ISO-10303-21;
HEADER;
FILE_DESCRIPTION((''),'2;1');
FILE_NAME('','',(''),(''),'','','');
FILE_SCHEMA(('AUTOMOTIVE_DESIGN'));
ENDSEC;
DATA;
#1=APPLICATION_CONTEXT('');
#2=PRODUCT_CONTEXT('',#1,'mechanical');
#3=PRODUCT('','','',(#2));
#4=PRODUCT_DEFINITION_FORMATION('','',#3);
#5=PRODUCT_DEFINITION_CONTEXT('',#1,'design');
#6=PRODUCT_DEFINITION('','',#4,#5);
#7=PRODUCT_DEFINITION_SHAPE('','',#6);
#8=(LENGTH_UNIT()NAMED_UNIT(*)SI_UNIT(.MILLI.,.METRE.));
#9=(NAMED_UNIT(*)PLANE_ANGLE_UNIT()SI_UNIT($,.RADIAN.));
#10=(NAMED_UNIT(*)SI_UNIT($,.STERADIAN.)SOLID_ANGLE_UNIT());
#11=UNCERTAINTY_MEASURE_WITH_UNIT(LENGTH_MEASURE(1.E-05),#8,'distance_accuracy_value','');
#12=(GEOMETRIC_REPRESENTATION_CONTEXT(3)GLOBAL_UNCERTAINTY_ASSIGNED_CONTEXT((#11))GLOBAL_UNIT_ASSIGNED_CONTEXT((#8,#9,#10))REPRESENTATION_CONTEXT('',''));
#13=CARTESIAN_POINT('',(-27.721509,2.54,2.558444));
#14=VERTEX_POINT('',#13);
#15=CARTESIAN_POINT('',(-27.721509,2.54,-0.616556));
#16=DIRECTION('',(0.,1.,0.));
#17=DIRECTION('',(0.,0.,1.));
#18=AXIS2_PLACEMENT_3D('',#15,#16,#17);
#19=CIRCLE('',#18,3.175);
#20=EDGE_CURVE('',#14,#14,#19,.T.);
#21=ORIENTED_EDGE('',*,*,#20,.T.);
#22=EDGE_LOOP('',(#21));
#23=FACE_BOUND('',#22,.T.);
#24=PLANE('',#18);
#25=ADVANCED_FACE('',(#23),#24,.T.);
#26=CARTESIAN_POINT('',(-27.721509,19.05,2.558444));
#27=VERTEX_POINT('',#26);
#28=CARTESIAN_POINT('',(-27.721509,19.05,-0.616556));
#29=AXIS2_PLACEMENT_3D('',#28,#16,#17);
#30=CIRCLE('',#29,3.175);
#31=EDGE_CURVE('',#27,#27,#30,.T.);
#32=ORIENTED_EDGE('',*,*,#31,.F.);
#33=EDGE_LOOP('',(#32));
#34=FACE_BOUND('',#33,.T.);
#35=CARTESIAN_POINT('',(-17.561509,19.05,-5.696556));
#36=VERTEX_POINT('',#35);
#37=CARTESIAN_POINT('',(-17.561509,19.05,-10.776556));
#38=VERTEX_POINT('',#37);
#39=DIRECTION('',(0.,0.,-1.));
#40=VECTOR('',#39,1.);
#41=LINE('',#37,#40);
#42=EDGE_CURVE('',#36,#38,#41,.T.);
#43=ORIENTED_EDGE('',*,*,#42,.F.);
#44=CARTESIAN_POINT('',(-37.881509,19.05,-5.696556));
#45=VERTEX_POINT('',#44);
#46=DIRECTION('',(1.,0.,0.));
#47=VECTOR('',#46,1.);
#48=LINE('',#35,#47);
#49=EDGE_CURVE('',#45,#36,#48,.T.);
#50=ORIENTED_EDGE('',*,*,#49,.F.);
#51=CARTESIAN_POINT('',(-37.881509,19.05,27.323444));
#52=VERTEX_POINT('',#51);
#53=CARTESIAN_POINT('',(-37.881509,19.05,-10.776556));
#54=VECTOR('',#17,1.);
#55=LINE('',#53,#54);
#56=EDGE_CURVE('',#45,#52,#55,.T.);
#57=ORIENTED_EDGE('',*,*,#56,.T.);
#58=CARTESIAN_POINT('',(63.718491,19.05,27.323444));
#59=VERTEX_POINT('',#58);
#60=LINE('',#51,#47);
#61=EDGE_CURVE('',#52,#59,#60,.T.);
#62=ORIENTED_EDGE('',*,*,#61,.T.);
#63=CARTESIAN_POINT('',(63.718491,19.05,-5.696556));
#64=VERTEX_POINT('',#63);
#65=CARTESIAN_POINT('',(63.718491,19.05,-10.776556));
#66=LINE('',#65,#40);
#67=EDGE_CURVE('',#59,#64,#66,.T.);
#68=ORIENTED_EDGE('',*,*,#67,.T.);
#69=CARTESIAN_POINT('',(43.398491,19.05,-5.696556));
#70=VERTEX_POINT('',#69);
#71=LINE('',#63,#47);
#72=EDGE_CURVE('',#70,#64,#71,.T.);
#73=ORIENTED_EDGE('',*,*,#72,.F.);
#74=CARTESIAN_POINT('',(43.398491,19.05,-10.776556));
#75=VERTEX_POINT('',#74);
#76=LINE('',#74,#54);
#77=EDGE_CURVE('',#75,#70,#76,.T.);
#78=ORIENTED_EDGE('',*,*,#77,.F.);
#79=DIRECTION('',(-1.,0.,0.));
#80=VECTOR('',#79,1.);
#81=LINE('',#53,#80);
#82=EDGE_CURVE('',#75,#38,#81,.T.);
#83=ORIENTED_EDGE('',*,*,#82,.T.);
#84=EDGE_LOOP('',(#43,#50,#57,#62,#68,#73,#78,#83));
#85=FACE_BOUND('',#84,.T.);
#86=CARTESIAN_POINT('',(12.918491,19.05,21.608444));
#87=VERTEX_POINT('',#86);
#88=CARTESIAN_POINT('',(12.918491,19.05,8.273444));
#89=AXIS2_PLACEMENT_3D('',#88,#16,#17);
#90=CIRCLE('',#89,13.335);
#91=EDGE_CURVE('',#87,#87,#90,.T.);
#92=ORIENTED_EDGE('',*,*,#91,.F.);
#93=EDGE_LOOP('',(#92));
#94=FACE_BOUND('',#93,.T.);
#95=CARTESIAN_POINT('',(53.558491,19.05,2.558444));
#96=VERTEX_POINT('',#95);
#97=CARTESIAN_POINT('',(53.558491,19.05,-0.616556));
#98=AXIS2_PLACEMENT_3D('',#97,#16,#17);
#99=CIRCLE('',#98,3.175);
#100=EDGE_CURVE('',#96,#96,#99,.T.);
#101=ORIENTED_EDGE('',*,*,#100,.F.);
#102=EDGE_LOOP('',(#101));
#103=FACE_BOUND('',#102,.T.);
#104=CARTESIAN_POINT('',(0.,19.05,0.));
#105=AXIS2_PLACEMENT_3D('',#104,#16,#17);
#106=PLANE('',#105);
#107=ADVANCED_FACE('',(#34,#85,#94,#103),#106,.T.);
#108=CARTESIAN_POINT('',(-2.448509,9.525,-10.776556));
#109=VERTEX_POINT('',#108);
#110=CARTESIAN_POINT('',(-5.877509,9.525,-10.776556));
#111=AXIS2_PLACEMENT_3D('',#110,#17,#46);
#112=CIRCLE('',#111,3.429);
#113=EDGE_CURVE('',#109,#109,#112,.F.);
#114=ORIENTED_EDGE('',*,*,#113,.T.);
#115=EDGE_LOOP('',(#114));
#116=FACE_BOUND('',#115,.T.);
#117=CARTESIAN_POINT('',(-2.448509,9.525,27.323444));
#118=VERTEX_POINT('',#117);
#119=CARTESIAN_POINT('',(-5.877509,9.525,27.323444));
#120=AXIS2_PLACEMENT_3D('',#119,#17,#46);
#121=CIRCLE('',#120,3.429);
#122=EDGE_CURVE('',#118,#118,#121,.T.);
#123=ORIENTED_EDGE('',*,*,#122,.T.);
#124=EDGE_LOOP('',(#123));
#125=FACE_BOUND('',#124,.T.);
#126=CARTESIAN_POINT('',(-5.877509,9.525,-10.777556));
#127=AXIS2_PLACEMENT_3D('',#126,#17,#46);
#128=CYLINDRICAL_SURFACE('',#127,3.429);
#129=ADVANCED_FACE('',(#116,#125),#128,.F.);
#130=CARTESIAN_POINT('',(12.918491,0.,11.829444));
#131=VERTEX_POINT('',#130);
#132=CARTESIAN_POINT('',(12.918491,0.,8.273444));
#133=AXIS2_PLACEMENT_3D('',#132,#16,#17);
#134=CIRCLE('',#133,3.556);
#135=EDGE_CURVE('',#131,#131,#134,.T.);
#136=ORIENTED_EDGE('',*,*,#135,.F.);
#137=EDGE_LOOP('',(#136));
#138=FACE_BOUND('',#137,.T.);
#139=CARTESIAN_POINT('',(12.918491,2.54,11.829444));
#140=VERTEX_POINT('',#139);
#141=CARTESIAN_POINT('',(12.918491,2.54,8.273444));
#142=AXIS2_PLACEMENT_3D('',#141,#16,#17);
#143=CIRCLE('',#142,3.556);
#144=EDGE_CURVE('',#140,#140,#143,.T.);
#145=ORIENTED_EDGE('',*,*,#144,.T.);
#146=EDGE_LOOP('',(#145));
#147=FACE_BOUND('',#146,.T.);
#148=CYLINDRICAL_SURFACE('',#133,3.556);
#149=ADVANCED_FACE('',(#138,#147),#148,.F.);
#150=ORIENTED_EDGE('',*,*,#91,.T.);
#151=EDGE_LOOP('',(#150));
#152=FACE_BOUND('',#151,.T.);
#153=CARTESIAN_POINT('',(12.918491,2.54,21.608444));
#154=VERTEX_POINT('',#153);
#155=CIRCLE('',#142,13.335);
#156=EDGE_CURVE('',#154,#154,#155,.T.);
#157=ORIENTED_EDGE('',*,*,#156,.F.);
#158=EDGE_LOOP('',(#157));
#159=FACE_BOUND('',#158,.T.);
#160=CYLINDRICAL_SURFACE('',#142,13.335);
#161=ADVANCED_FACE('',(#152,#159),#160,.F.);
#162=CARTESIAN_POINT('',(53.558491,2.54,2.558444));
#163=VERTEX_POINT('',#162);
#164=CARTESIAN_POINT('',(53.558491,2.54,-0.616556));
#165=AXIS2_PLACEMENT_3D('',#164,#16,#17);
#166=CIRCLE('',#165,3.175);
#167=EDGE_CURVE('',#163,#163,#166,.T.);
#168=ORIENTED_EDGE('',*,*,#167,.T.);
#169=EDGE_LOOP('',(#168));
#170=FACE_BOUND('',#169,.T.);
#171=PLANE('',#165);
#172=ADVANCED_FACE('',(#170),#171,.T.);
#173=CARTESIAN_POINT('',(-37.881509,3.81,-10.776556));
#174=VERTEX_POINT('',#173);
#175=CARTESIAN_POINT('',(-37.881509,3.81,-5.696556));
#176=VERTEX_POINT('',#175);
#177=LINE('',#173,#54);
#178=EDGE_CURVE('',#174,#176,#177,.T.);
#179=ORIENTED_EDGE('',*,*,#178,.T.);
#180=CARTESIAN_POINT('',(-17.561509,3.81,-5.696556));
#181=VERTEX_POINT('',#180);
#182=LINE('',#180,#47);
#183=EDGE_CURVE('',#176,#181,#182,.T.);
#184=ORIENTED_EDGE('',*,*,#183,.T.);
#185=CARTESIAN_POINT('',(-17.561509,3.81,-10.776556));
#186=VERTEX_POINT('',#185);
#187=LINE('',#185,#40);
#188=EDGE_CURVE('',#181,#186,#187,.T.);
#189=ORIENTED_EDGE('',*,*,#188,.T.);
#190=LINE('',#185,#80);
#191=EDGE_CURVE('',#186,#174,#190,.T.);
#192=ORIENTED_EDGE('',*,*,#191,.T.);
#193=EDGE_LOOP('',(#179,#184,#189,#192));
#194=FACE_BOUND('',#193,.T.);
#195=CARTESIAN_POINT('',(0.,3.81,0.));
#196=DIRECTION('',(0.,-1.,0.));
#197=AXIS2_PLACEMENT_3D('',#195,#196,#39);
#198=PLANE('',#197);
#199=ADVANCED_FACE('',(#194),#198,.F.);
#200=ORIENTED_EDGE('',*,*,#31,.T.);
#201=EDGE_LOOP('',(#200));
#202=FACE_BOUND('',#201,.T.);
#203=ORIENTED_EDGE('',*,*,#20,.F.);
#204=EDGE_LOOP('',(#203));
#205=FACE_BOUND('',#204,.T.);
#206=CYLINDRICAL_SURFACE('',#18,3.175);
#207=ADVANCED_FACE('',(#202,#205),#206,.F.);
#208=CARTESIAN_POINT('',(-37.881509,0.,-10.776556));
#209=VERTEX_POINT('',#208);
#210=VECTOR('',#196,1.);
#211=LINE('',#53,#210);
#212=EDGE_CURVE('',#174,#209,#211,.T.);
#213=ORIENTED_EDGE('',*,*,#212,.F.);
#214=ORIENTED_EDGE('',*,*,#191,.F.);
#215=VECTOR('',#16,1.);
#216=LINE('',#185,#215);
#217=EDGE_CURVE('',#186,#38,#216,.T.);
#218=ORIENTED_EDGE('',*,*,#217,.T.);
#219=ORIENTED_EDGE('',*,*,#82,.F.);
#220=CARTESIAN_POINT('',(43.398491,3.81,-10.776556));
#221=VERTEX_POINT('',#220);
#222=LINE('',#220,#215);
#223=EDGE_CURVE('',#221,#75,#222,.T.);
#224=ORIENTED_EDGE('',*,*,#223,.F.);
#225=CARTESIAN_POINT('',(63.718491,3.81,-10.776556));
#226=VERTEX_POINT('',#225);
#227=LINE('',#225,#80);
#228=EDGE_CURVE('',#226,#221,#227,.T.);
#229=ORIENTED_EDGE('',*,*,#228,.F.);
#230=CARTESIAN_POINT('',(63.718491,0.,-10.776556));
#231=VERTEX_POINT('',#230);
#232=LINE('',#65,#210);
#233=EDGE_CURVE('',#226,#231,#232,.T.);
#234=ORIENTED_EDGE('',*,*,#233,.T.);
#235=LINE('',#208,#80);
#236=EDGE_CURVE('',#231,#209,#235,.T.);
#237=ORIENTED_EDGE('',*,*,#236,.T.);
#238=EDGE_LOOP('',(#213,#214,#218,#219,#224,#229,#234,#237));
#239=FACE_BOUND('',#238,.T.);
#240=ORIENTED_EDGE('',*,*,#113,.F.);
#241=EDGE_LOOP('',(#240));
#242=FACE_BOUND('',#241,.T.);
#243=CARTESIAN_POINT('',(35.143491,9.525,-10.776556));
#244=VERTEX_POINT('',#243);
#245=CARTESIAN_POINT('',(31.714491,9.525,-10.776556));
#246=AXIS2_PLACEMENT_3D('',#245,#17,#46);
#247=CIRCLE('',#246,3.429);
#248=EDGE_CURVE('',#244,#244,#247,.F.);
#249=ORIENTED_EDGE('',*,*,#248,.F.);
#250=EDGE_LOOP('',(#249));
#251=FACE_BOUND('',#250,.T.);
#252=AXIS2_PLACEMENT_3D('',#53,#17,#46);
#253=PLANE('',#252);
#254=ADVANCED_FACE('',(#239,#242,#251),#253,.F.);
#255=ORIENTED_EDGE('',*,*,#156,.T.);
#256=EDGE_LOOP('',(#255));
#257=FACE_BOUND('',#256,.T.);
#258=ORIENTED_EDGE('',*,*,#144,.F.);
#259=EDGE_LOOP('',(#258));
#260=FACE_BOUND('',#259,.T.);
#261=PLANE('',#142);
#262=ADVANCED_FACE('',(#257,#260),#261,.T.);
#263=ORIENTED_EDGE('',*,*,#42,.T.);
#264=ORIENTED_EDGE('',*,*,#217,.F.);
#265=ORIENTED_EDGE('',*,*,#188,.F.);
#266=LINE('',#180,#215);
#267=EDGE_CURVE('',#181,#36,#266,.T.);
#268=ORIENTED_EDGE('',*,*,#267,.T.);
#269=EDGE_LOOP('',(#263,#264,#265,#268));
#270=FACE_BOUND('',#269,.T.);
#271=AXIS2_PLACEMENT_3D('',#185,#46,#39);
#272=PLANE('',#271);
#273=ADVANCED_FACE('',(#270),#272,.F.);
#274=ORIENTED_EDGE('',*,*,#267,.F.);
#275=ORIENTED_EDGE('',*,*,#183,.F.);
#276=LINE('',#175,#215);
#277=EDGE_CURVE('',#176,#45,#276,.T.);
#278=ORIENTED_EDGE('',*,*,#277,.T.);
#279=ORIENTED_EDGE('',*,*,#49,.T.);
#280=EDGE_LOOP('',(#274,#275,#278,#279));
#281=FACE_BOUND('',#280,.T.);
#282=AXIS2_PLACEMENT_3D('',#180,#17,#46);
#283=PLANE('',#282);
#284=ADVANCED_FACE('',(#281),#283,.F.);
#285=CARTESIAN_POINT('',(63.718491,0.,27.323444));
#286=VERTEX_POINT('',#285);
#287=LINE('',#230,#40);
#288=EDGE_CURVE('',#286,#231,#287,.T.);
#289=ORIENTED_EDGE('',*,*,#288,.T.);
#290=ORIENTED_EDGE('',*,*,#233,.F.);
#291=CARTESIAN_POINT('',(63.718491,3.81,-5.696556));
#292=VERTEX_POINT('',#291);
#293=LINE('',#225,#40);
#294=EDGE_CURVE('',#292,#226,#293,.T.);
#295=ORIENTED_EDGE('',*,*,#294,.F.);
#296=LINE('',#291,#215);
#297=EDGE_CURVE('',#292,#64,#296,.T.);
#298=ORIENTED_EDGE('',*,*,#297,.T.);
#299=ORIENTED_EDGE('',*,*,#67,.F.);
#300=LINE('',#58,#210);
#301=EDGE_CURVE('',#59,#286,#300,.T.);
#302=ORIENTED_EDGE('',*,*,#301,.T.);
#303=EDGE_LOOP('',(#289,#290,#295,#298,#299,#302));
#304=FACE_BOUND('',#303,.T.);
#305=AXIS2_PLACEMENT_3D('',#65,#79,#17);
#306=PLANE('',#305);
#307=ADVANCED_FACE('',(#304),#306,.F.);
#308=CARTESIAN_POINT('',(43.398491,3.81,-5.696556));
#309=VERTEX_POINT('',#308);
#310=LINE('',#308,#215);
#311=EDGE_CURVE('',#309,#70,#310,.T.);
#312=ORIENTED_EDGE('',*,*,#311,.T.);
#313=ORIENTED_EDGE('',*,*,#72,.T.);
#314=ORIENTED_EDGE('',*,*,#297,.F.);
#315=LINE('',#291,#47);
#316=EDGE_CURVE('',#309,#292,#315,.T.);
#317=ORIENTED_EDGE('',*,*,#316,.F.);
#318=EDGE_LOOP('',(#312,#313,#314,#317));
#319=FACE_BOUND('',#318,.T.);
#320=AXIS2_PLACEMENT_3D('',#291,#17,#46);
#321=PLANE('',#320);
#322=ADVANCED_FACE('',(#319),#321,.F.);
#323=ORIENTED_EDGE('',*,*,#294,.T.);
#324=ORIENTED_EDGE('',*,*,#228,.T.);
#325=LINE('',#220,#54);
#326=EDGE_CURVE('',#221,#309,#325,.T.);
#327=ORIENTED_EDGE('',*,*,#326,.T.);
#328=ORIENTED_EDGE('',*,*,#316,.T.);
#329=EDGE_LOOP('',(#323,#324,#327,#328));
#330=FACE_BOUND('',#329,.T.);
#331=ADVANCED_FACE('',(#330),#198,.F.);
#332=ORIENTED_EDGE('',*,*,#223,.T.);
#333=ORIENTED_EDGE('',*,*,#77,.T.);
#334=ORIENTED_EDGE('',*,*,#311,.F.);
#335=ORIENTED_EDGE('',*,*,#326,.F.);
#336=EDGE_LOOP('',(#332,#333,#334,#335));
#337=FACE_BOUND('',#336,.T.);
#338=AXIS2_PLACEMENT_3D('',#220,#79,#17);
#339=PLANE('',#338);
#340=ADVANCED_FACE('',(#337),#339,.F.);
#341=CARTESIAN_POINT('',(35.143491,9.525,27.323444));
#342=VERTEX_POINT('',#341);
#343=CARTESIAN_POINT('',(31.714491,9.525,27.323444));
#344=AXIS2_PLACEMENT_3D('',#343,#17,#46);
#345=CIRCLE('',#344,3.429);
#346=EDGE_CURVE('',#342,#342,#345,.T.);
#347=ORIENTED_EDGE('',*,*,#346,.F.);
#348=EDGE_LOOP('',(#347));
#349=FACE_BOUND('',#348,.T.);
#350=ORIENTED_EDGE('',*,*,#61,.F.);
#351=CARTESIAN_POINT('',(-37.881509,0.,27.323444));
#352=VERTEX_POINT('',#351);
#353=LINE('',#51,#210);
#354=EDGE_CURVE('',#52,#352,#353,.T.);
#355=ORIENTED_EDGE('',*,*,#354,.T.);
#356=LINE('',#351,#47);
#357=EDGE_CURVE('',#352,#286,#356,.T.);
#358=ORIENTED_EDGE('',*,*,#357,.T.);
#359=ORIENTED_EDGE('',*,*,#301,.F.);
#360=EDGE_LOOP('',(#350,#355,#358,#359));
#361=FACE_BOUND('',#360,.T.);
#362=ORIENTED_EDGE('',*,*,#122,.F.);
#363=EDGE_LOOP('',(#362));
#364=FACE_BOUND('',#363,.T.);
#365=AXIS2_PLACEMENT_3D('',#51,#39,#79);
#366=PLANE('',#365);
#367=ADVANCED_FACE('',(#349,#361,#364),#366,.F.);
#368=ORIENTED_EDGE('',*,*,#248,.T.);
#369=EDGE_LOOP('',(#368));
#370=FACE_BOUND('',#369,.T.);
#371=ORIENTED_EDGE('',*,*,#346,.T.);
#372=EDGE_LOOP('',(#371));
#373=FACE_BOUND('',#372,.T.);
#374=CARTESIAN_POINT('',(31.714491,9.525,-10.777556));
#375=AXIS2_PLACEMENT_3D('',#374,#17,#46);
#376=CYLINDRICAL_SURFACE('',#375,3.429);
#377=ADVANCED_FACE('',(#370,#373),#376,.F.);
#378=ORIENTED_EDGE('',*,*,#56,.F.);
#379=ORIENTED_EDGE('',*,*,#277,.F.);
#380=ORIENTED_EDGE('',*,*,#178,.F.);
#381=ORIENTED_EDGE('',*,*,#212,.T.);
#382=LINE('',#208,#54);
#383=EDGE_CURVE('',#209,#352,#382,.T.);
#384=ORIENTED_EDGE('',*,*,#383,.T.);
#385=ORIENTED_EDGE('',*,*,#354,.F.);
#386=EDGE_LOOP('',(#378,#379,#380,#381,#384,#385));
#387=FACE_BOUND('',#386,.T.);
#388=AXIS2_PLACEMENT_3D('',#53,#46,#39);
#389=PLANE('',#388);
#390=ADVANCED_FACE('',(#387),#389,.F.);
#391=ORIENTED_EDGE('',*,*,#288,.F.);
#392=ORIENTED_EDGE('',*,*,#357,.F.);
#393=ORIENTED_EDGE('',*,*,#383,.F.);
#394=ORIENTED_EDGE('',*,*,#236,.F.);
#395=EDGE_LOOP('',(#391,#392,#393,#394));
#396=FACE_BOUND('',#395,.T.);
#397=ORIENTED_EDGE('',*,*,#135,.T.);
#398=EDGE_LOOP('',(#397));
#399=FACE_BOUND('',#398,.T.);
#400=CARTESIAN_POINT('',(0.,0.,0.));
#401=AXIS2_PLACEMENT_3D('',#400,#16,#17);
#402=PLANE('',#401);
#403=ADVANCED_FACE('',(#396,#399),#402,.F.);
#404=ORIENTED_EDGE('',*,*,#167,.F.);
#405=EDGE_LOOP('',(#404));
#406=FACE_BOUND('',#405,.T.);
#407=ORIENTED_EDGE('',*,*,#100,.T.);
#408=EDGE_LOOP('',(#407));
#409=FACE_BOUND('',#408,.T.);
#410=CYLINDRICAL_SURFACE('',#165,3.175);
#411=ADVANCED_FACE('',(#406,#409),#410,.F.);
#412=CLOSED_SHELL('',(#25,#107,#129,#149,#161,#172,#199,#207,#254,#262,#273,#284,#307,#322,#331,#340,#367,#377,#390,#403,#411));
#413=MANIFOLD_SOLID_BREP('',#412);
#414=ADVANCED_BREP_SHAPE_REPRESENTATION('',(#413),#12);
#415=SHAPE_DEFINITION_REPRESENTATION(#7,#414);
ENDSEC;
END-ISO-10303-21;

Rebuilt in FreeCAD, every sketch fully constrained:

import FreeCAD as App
import Part
import Sketcher
Q = App.Units.Quantity


def add_polygon(sketch, points):
    """Adds a closed chain of lines whose ends are joined by coincident constraints."""
    first, n = sketch.GeometryCount, len(points)
    for a, b in zip(points, points[1:] + points[:1]):
        sketch.addGeometry(Part.LineSegment(App.Vector(*a, 0), App.Vector(*b, 0)), False)
    for i in range(n):
        sketch.addConstraint(Sketcher.Constraint("Coincident", first + i, 2, first + (i + 1) % n, 1))

doc = App.newDocument("Part")
body = doc.addObject("PartDesign::Body", "Body")

# Sketch on XZ plane
sketch1 = body.newObject("Sketcher::SketchObject", "Sketch")
sketch1.AttachmentSupport = (doc.getObject("XZ_Plane"), [""])
sketch1.MapMode = "FlatFace"
add_polygon(sketch1, [(-37.881509, -10.776556), (-37.881509, 27.323444), (63.718491, 27.323444), (63.718491, -10.776556)])  # lines 0-3
sketch1.addConstraint([
    Sketcher.Constraint("Vertical", 0),
    Sketcher.Constraint("Horizontal", 1),
    Sketcher.Constraint("Vertical", 2),
    Sketcher.Constraint("Horizontal", 3),
    Sketcher.Constraint("DistanceX", 1, 1, 1, 2, Q("4 in")),
    Sketcher.Constraint("DistanceY", 0, 1, 0, 2, Q("1.5 in")),
    Sketcher.Constraint("DistanceX", 0, 2, -1, 1, Q("37.881509 mm")),
    Sketcher.Constraint("DistanceY", -1, 1, 0, 2, Q("27.323444 mm")),
])
pad1 = body.newObject("PartDesign::Pad", "Pad")
pad1.Profile = sketch1
pad1.Length = Q("0.75 in")
pad1.Reversed = True

# Sketch on XZ plane
sketch2 = body.newObject("Sketcher::SketchObject", "Sketch001")
sketch2.AttachmentSupport = (doc.getObject("XZ_Plane"), [""])
sketch2.MapMode = "FlatFace"
sketch2.AttachmentOffset = App.Placement(App.Vector(0, 0, -0.75 * 25.4), App.Rotation())
sketch2.addGeometry([
    Part.Circle(App.Vector(-27.721509, -0.616556, 0), App.Vector(0, 0, 1), 3.175),
    Part.Circle(App.Vector(53.558491, -0.616556, 0), App.Vector(0, 0, 1), 3.175),
], False)
sketch2.addConstraint([
    Sketcher.Constraint("Equal", 0, 1),
    Sketcher.Constraint("Horizontal", 0, 3, 1, 3),
    Sketcher.Constraint("Diameter", 0, Q("0.25 in")),
    Sketcher.Constraint("DistanceX", 0, 3, 1, 3, Q("3.2 in")),
    Sketcher.Constraint("DistanceX", 0, 3, -1, 1, Q("27.721509 mm")),
    Sketcher.Constraint("DistanceY", 0, 3, -1, 1, Q("0.616556 mm")),
])
pocket1 = body.newObject("PartDesign::Pocket", "Pocket")
pocket1.Profile = sketch2
pocket1.Length = Q("0.65 in")
pocket1.Reversed = True

# Sketch on XY plane
sketch3 = body.newObject("Sketcher::SketchObject", "Sketch002")
sketch3.AttachmentSupport = (doc.getObject("XY_Plane"), [""])
sketch3.MapMode = "FlatFace"
sketch3.AttachmentOffset = App.Placement(App.Vector(0, 0, 27.323444), App.Rotation())
sketch3.addGeometry(Part.Circle(App.Vector(-5.877509, 9.525, 0), App.Vector(0, 0, 1), 3.429), False)
sketch3.addConstraint([
    Sketcher.Constraint("Diameter", 0, Q("0.27 in")),
    Sketcher.Constraint("DistanceY", -1, 1, 0, 3, Q("0.375 in")),
    Sketcher.Constraint("DistanceX", 0, 3, -1, 1, Q("5.877509 mm")),
])
pocket2 = body.newObject("PartDesign::Pocket", "Pocket001")
pocket2.Profile = sketch3
pocket2.Type = "UpToFirst"

# Sketch on XY plane
sketch4 = body.newObject("Sketcher::SketchObject", "Sketch003")
sketch4.AttachmentSupport = (doc.getObject("XY_Plane"), [""])
sketch4.MapMode = "FlatFace"
sketch4.AttachmentOffset = App.Placement(App.Vector(0, 0, 27.323444), App.Rotation())
sketch4.addGeometry(Part.Circle(App.Vector(31.714491, 9.525, 0), App.Vector(0, 0, 1), 3.429), False)
sketch4.addConstraint([
    Sketcher.Constraint("Diameter", 0, Q("0.27 in")),
    Sketcher.Constraint("DistanceY", -1, 1, 0, 3, Q("0.375 in")),
    Sketcher.Constraint("DistanceX", -1, 1, 0, 3, Q("31.714491 mm")),
])
pocket3 = body.newObject("PartDesign::Pocket", "Pocket002")
pocket3.Profile = sketch4
pocket3.Type = "UpToFirst"

# Sketch on XZ plane
sketch5 = body.newObject("Sketcher::SketchObject", "Sketch004")
sketch5.AttachmentSupport = (doc.getObject("XZ_Plane"), [""])
sketch5.MapMode = "FlatFace"
sketch5.AttachmentOffset = App.Placement(App.Vector(0, 0, -0.75 * 25.4), App.Rotation())
sketch5.addGeometry(Part.Circle(App.Vector(12.918491, 8.273444, 0), App.Vector(0, 0, 1), 13.335), False)
sketch5.addConstraint([
    Sketcher.Constraint("Diameter", 0, Q("1.05 in")),
    Sketcher.Constraint("DistanceX", -1, 1, 0, 3, Q("12.918491 mm")),
    Sketcher.Constraint("DistanceY", -1, 1, 0, 3, Q("8.273444 mm")),
])
pocket4 = body.newObject("PartDesign::Pocket", "Pocket003")
pocket4.Profile = sketch5
pocket4.Length = Q("0.65 in")
pocket4.Reversed = True

# Sketch on XZ plane
sketch6 = body.newObject("Sketcher::SketchObject", "Sketch005")
sketch6.AttachmentSupport = (doc.getObject("XZ_Plane"), [""])
sketch6.MapMode = "FlatFace"
sketch6.AttachmentOffset = App.Placement(App.Vector(0, 0, -0.75 * 25.4), App.Rotation())
sketch6.addGeometry(Part.Circle(App.Vector(12.918491, 8.273444, 0), App.Vector(0, 0, 1), 3.556), False)
sketch6.addConstraint([
    Sketcher.Constraint("Diameter", 0, Q("0.28 in")),
    Sketcher.Constraint("DistanceX", -1, 1, 0, 3, Q("12.918491 mm")),
    Sketcher.Constraint("DistanceY", -1, 1, 0, 3, Q("8.273444 mm")),
])
pocket5 = body.newObject("PartDesign::Pocket", "Pocket004")
pocket5.Profile = sketch6
pocket5.Type = "ThroughAll"
pocket5.Reversed = True

# Sketch on XZ plane
sketch7 = body.newObject("Sketcher::SketchObject", "Sketch006")
sketch7.AttachmentSupport = (doc.getObject("XZ_Plane"), [""])
sketch7.MapMode = "FlatFace"
sketch7.AttachmentOffset = App.Placement(App.Vector(0, 0, -0.75 * 25.4), App.Rotation())
add_polygon(sketch7, [(-37.881509, -10.776556), (-37.881509, -5.696556), (-17.561509, -5.696556), (-17.561509, -10.776556)])  # lines 0-3
add_polygon(sketch7, [(43.398491, -10.776556), (43.398491, -5.696556), (63.718491, -5.696556), (63.718491, -10.776556)])  # lines 4-7
sketch7.addConstraint([
    Sketcher.Constraint("Vertical", 0),
    Sketcher.Constraint("Horizontal", 1),
    Sketcher.Constraint("Vertical", 2),
    Sketcher.Constraint("Horizontal", 3),
    Sketcher.Constraint("Vertical", 4),
    Sketcher.Constraint("Horizontal", 5),
    Sketcher.Constraint("Vertical", 6),
    Sketcher.Constraint("Horizontal", 7),
    Sketcher.Constraint("Horizontal", 1, 2, 4, 2),
    Sketcher.Constraint("Horizontal", 3, 2, 6, 2),
    Sketcher.Constraint("Equal", 3, 5),
    Sketcher.Constraint("DistanceX", 1, 1, 1, 2, Q("0.8 in")),
    Sketcher.Constraint("DistanceY", 0, 1, 0, 2, Q("0.2 in")),
    Sketcher.Constraint("DistanceX", 0, 2, 5, 2, Q("4 in")),
    Sketcher.Constraint("DistanceX", 0, 2, -1, 1, Q("37.881509 mm")),
    Sketcher.Constraint("DistanceY", 0, 2, -1, 1, Q("5.696556 mm")),
])
pocket6 = body.newObject("PartDesign::Pocket", "Pocket005")
pocket6.Profile = sketch7
pocket6.Length = Q("0.6 in")
pocket6.Reversed = True

doc.recompute()
